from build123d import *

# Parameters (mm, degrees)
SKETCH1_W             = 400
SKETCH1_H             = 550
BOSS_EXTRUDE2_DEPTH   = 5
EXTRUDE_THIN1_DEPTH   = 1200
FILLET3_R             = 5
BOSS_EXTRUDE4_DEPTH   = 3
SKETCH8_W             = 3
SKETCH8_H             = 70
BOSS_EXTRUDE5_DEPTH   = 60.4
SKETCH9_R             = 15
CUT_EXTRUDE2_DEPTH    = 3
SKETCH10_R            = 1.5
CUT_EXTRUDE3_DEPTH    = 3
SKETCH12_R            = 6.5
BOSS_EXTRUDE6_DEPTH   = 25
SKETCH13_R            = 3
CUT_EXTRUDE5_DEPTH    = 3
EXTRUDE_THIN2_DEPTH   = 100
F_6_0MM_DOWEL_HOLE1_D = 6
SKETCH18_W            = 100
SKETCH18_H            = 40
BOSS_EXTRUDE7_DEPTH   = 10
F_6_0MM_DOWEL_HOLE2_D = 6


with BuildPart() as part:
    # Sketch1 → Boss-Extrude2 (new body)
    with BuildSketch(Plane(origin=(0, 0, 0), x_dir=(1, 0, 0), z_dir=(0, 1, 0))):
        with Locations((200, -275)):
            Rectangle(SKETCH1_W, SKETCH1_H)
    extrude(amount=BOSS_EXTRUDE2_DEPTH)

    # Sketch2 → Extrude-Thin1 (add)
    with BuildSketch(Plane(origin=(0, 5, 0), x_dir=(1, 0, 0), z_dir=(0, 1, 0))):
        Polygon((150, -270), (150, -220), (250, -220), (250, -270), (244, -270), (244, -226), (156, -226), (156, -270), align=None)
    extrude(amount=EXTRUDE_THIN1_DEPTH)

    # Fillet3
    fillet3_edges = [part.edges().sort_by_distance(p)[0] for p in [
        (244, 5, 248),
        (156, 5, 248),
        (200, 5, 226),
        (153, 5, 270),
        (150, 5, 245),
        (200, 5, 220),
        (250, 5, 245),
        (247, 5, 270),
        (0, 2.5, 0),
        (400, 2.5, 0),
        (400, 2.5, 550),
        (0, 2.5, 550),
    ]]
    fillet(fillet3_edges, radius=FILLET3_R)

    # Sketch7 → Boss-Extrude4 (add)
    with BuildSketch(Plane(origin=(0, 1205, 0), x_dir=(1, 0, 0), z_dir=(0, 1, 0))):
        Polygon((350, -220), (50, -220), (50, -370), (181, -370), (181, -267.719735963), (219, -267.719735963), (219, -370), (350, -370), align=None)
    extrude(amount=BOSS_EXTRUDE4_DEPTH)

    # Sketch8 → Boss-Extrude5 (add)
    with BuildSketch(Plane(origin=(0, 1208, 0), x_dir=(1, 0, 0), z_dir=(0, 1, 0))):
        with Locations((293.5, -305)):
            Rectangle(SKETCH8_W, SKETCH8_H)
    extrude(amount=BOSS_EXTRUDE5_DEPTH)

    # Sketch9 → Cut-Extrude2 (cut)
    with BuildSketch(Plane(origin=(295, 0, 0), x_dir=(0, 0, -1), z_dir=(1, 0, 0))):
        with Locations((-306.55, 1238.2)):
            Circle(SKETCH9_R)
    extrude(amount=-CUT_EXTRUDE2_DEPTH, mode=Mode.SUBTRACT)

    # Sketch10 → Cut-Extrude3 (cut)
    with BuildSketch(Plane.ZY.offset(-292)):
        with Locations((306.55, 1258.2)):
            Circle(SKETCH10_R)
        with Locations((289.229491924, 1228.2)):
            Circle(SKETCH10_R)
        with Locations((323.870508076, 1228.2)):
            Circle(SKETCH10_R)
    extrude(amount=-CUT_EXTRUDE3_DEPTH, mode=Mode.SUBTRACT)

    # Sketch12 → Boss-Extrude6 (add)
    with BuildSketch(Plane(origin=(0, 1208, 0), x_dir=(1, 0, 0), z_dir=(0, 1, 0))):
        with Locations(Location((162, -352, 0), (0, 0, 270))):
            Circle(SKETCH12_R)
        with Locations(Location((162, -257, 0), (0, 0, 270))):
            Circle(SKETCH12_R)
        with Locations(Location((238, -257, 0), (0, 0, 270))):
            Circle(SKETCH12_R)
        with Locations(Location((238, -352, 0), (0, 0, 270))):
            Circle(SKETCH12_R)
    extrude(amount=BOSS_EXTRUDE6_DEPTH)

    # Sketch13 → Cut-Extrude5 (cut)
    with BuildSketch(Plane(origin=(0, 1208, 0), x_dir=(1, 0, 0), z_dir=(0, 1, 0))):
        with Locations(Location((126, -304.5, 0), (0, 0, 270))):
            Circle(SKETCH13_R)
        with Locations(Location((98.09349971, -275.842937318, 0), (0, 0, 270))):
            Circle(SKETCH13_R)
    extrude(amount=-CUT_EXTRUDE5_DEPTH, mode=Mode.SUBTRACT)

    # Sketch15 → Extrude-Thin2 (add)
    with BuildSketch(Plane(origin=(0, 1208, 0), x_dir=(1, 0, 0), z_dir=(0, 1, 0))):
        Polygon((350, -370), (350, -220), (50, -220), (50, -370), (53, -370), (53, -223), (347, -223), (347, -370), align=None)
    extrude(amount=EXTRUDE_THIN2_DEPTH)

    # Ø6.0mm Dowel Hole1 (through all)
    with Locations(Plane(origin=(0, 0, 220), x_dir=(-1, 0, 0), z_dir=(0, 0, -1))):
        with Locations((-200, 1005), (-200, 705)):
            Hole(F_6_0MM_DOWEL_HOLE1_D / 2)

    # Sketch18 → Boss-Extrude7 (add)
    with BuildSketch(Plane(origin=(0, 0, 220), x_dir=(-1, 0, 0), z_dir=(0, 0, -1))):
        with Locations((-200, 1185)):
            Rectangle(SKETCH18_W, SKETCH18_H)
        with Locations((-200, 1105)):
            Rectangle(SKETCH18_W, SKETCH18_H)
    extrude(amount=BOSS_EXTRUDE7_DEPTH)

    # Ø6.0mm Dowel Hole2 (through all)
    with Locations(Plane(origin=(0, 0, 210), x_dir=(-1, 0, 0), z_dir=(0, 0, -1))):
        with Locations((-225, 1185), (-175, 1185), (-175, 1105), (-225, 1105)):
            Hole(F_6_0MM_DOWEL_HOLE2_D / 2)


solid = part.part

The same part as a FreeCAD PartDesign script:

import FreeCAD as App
import Part
import Sketcher

V = App.Vector


def edges_at(feature, points):
    """Names of the edges that pass closest to the given points."""
    edges = feature.Shape.Edges
    near = lambda p: min(range(len(edges)), key=lambda i: edges[i].distToShape(Part.Vertex(*p))[0])
    return sorted({f"Edge{near(p) + 1}" for p in points})

doc = App.newDocument("Part")
body = doc.addObject("PartDesign::Body", "Body")

# Sketch on XZ plane
sketch1 = body.newObject("Sketcher::SketchObject", "Sketch")
sketch1.AttachmentSupport = (doc.getObject("XZ_Plane"), [""])
sketch1.MapMode = "FlatFace"
sketch1.addGeometry([
    Part.LineSegment(V(0, 0, 0), V(0, 550, 0)),
    Part.LineSegment(V(0, 550, 0), V(400, 550, 0)),
    Part.LineSegment(V(400, 550, 0), V(400, 0, 0)),
    Part.LineSegment(V(400, 0, 0), V(0, 0, 0)),
], False)
sketch1.addConstraint([
    Sketcher.Constraint("Coincident", 0, 2, 1, 1),
    Sketcher.Constraint("Coincident", 1, 2, 2, 1),
    Sketcher.Constraint("Coincident", 2, 2, 3, 1),
    Sketcher.Constraint("Coincident", 3, 2, 0, 1),
    Sketcher.Constraint("Vertical", 0),
    Sketcher.Constraint("Horizontal", 1),
    Sketcher.Constraint("Vertical", 2),
    Sketcher.Constraint("Horizontal", 3),
    Sketcher.Constraint("Coincident", 3, 2, -1, 1),
    Sketcher.Constraint("DistanceX", 1, 1, 1, 2, 400.0),
    Sketcher.Constraint("DistanceY", 0, 1, 0, 2, 550.0),
])
pad1 = body.newObject("PartDesign::Pad", "Pad")
pad1.Profile = sketch1
pad1.Length = 5
pad1.Reversed = True

# Sketch on XZ plane
sketch2 = body.newObject("Sketcher::SketchObject", "Sketch001")
sketch2.AttachmentSupport = (doc.getObject("XZ_Plane"), [""])
sketch2.MapMode = "FlatFace"
sketch2.AttachmentOffset = App.Placement(V(0, 0, -5), App.Rotation())
sketch2.addGeometry([
    Part.LineSegment(V(150, 220, 0), V(150, 270, 0)),  # 0
    Part.LineSegment(V(150, 270, 0), V(156, 270, 0)),  # 1
    Part.LineSegment(V(156, 270, 0), V(156, 226, 0)),  # 2
    Part.LineSegment(V(156, 226, 0), V(244, 226, 0)),  # 3
    Part.LineSegment(V(244, 226, 0), V(244, 270, 0)),  # 4
    Part.LineSegment(V(244, 270, 0), V(250, 270, 0)),  # 5
    Part.LineSegment(V(250, 270, 0), V(250, 220, 0)),  # 6
    Part.LineSegment(V(250, 220, 0), V(150, 220, 0)),  # 7
], False)
sketch2.addConstraint([
    Sketcher.Constraint("Coincident", 0, 2, 1, 1),
    Sketcher.Constraint("Coincident", 1, 2, 2, 1),
    Sketcher.Constraint("Coincident", 2, 2, 3, 1),
    Sketcher.Constraint("Coincident", 3, 2, 4, 1),
    Sketcher.Constraint("Coincident", 4, 2, 5, 1),
    Sketcher.Constraint("Coincident", 5, 2, 6, 1),
    Sketcher.Constraint("Coincident", 6, 2, 7, 1),
    Sketcher.Constraint("Coincident", 7, 2, 0, 1),
    Sketcher.Constraint("Vertical", 0),
    Sketcher.Constraint("Horizontal", 1),
    Sketcher.Constraint("Vertical", 2),
    Sketcher.Constraint("Horizontal", 3),
    Sketcher.Constraint("Vertical", 4),
    Sketcher.Constraint("Horizontal", 5),
    Sketcher.Constraint("Vertical", 6),
    Sketcher.Constraint("Horizontal", 7),
    Sketcher.Constraint("Horizontal", 1, 2, 4, 2),
    Sketcher.Constraint("Equal", 1, 5),
    Sketcher.Constraint("DistanceX", 1, 1, 1, 2, 6.0),
    Sketcher.Constraint("DistanceX", 3, 1, 3, 2, 88.0),
    Sketcher.Constraint("DistanceY", 0, 1, 0, 2, 50.0),
    Sketcher.Constraint("DistanceY", 2, 2, 2, 1, 44.0),
    Sketcher.Constraint("DistanceX", -1, 1, 0, 2, 150.0),
    Sketcher.Constraint("DistanceY", -1, 1, 0, 2, 270.0),
])
pad2 = body.newObject("PartDesign::Pad", "Pad001")
pad2.Profile = sketch2
pad2.Length = 1200
pad2.Reversed = True
doc.recompute()

fillet = body.newObject("PartDesign::Fillet", "Fillet")
fillet.Base = (pad2, edges_at(pad2, [
    (244, 5, 248),
    (156, 5, 248),
    (200, 5, 226),
    (153, 5, 270),
    (150, 5, 245),
    (200, 5, 220),
    (250, 5, 245),
    (247, 5, 270),
    (0, 2.5, 0),
    (400, 2.5, 0),
    (400, 2.5, 550),
    (0, 2.5, 550),
]))
fillet.Radius = 5

# Sketch on XZ plane
sketch3 = body.newObject("Sketcher::SketchObject", "Sketch002")
sketch3.AttachmentSupport = (doc.getObject("XZ_Plane"), [""])
sketch3.MapMode = "FlatFace"
sketch3.AttachmentOffset = App.Placement(V(0, 0, -1205), App.Rotation())
sketch3.addGeometry([
    Part.LineSegment(V(350, 220, 0), V(50, 220, 0)),  # 0
    Part.LineSegment(V(50, 220, 0), V(50, 370, 0)),  # 1
    Part.LineSegment(V(50, 370, 0), V(181, 370, 0)),  # 2
    Part.LineSegment(V(181, 370, 0), V(181, 268, 0)),  # 3
    Part.LineSegment(V(181, 268, 0), V(219, 268, 0)),  # 4
    Part.LineSegment(V(219, 268, 0), V(219, 370, 0)),  # 5
    Part.LineSegment(V(219, 370, 0), V(350, 370, 0)),  # 6
    Part.LineSegment(V(350, 370, 0), V(350, 220, 0)),  # 7
], False)
sketch3.addConstraint([
    Sketcher.Constraint("Coincident", 0, 2, 1, 1),
    Sketcher.Constraint("Coincident", 1, 2, 2, 1),
    Sketcher.Constraint("Coincident", 2, 2, 3, 1),
    Sketcher.Constraint("Coincident", 3, 2, 4, 1),
    Sketcher.Constraint("Coincident", 4, 2, 5, 1),
    Sketcher.Constraint("Coincident", 5, 2, 6, 1),
    Sketcher.Constraint("Coincident", 6, 2, 7, 1),
    Sketcher.Constraint("Coincident", 7, 2, 0, 1),
    Sketcher.Constraint("Horizontal", 0),
    Sketcher.Constraint("Vertical", 1),
    Sketcher.Constraint("Horizontal", 2),
    Sketcher.Constraint("Vertical", 3),
    Sketcher.Constraint("Horizontal", 4),
    Sketcher.Constraint("Vertical", 5),
    Sketcher.Constraint("Horizontal", 6),
    Sketcher.Constraint("Vertical", 7),
    Sketcher.Constraint("Horizontal", 2, 2, 5, 2),
    Sketcher.Constraint("Equal", 2, 6),
    Sketcher.Constraint("DistanceX", 0, 2, 0, 1, 300.0),
    Sketcher.Constraint("DistanceX", 2, 1, 2, 2, 131.0),
    Sketcher.Constraint("DistanceY", 1, 1, 1, 2, 150.0),
    Sketcher.Constraint("DistanceX", -1, 1, 0, 2, 50.0),
    Sketcher.Constraint("DistanceY", -1, 1, 0, 2, 220.0),
    Sketcher.Constraint("DistanceY", 3, 2, 3, 1, 102.280264),
])
pad3 = body.newObject("PartDesign::Pad", "Pad002")
pad3.Profile = sketch3
pad3.Length = 3
pad3.Reversed = True

# Sketch on XZ plane
sketch4 = body.newObject("Sketcher::SketchObject", "Sketch003")
sketch4.AttachmentSupport = (doc.getObject("XZ_Plane"), [""])
sketch4.MapMode = "FlatFace"
sketch4.AttachmentOffset = App.Placement(V(0, 0, -1208), App.Rotation())
sketch4.addGeometry([
    Part.LineSegment(V(292, 270, 0), V(292, 340, 0)),
    Part.LineSegment(V(292, 340, 0), V(295, 340, 0)),
    Part.LineSegment(V(295, 340, 0), V(295, 270, 0)),
    Part.LineSegment(V(295, 270, 0), V(292, 270, 0)),
], False)
sketch4.addConstraint([
    Sketcher.Constraint("Coincident", 0, 2, 1, 1),
    Sketcher.Constraint("Coincident", 1, 2, 2, 1),
    Sketcher.Constraint("Coincident", 2, 2, 3, 1),
    Sketcher.Constraint("Coincident", 3, 2, 0, 1),
    Sketcher.Constraint("Vertical", 0),
    Sketcher.Constraint("Horizontal", 1),
    Sketcher.Constraint("Vertical", 2),
    Sketcher.Constraint("Horizontal", 3),
    Sketcher.Constraint("DistanceX", 1, 1, 1, 2, 3.0),
    Sketcher.Constraint("DistanceY", 0, 1, 0, 2, 70.0),
    Sketcher.Constraint("DistanceX", -1, 1, 0, 2, 292.0),
    Sketcher.Constraint("DistanceY", -1, 1, 0, 2, 340.0),
])
pad4 = body.newObject("PartDesign::Pad", "Pad003")
pad4.Profile = sketch4
pad4.Length = 60.4
pad4.Reversed = True

# Sketch on YZ plane
sketch5 = body.newObject("Sketcher::SketchObject", "Sketch004")
sketch5.AttachmentSupport = (doc.getObject("YZ_Plane"), [""])
sketch5.MapMode = "FlatFace"
sketch5.AttachmentOffset = App.Placement(V(0, 0, 295), App.Rotation())
sketch5.addGeometry(Part.Circle(V(1238, 307, 0), V(0, 0, 1), 15), False)
sketch5.addConstraint([
    Sketcher.Constraint("Diameter", 0, 30.0),
    Sketcher.Constraint("DistanceX", -1, 1, 0, 3, 1238.2),
    Sketcher.Constraint("DistanceY", -1, 1, 0, 3, 306.55),
])
pocket1 = body.newObject("PartDesign::Pocket", "Pocket")
pocket1.Profile = sketch5
pocket1.Length = 3

# Sketch on YZ plane
sketch6 = body.newObject("Sketcher::SketchObject", "Sketch005")
sketch6.AttachmentSupport = (doc.getObject("YZ_Plane"), [""])
sketch6.MapMode = "FlatFace"
sketch6.AttachmentOffset = App.Placement(V(0, 0, 292), App.Rotation())
sketch6.addGeometry([
    Part.Circle(V(1258.2, 306.6, 0), V(0, 0, 1), 1.5),
    Part.Circle(V(1228.2, 289.2, 0), V(0, 0, 1), 1.5),
    Part.Circle(V(1228.2, 323.9, 0), V(0, 0, 1), 1.5),
], False)
sketch6.addConstraint([
    Sketcher.Constraint("Equal", 0, 1),
    Sketcher.Constraint("Equal", 1, 2),
    Sketcher.Constraint("Vertical", 1, 3, 2, 3),
    Sketcher.Constraint("Diameter", 0, 3.0),
    Sketcher.Constraint("DistanceX", 1, 3, 0, 3, 30.0),
    Sketcher.Constraint("DistanceX", -1, 1, 0, 3, 1258.2),
    Sketcher.Constraint("DistanceY", -1, 1, 0, 3, 306.55),
    Sketcher.Constraint("DistanceY", -1, 1, 1, 3, 289.229492),
    Sketcher.Constraint("DistanceY", -1, 1, 2, 3, 323.870508),
])
pocket2 = body.newObject("PartDesign::Pocket", "Pocket001")
pocket2.Profile = sketch6
pocket2.Length = 3
pocket2.Reversed = True

# Sketch on XZ plane
sketch7 = body.newObject("Sketcher::SketchObject", "Sketch006")
sketch7.AttachmentSupport = (doc.getObject("XZ_Plane"), [""])
sketch7.MapMode = "FlatFace"
sketch7.AttachmentOffset = App.Placement(V(0, 0, -1208), App.Rotation())
sketch7.addGeometry([
    Part.Circle(V(162, 352, 0), V(0, 0, 1), 6),
    Part.Circle(V(162, 257, 0), V(0, 0, 1), 6),
    Part.Circle(V(238, 257, 0), V(0, 0, 1), 6),
    Part.Circle(V(238, 352, 0), V(0, 0, 1), 6),
], False)
sketch7.addConstraint([
    Sketcher.Constraint("Equal", 0, 1),
    Sketcher.Constraint("Equal", 1, 2),
    Sketcher.Constraint("Equal", 2, 3),
    Sketcher.Constraint("Horizontal", 1, 3, 2, 3),
    Sketcher.Constraint("Horizontal", 0, 3, 3, 3),
    Sketcher.Constraint("Vertical", 0, 3, 1, 3),
    Sketcher.Constraint("Vertical", 2, 3, 3, 3),
    Sketcher.Constraint("Diameter", 0, 13.0),
    Sketcher.Constraint("DistanceX", -1, 1, 0, 3, 162.0),
    Sketcher.Constraint("DistanceY", -1, 1, 0, 3, 352.0),
    Sketcher.Constraint("DistanceY", -1, 1, 1, 3, 257.0),
    Sketcher.Constraint("DistanceX", -1, 1, 2, 3, 238.0),
])
pad5 = body.newObject("PartDesign::Pad", "Pad004")
pad5.Profile = sketch7
pad5.Length = 25
pad5.Reversed = True

# Sketch on XZ plane
sketch8 = body.newObject("Sketcher::SketchObject", "Sketch007")
sketch8.AttachmentSupport = (doc.getObject("XZ_Plane"), [""])
sketch8.MapMode = "FlatFace"
sketch8.AttachmentOffset = App.Placement(V(0, 0, -1208), App.Rotation())
sketch8.addGeometry([
    Part.Circle(V(126, 304.5, 0), V(0, 0, 1), 3),
    Part.Circle(V(98.1, 275.8, 0), V(0, 0, 1), 3),
], False)
sketch8.addConstraint([
    Sketcher.Constraint("Equal", 0, 1),
    Sketcher.Constraint("Diameter", 0, 6.0),
    Sketcher.Constraint("DistanceX", -1, 1, 0, 3, 126.0),
    Sketcher.Constraint("DistanceY", -1, 1, 0, 3, 304.5),
    Sketcher.Constraint("DistanceX", -1, 1, 1, 3, 98.0935),
    Sketcher.Constraint("DistanceY", -1, 1, 1, 3, 275.842937),
])
pocket3 = body.newObject("PartDesign::Pocket", "Pocket002")
pocket3.Profile = sketch8
pocket3.Length = 3
pocket3.Reversed = True

# Sketch on XZ plane
sketch9 = body.newObject("Sketcher::SketchObject", "Sketch008")
sketch9.AttachmentSupport = (doc.getObject("XZ_Plane"), [""])
sketch9.MapMode = "FlatFace"
sketch9.AttachmentOffset = App.Placement(V(0, 0, -1208), App.Rotation())
sketch9.addGeometry([
    Part.LineSegment(V(350, 370, 0), V(350, 220, 0)),  # 0
    Part.LineSegment(V(350, 220, 0), V(50, 220, 0)),  # 1
    Part.LineSegment(V(50, 220, 0), V(50, 370, 0)),  # 2
    Part.LineSegment(V(50, 370, 0), V(53, 370, 0)),  # 3
    Part.LineSegment(V(53, 370, 0), V(53, 223, 0)),  # 4
    Part.LineSegment(V(53, 223, 0), V(347, 223, 0)),  # 5
    Part.LineSegment(V(347, 223, 0), V(347, 370, 0)),  # 6
    Part.LineSegment(V(347, 370, 0), V(350, 370, 0)),  # 7
], False)
sketch9.addConstraint([
    Sketcher.Constraint("Coincident", 0, 2, 1, 1),
    Sketcher.Constraint("Coincident", 1, 2, 2, 1),
    Sketcher.Constraint("Coincident", 2, 2, 3, 1),
    Sketcher.Constraint("Coincident", 3, 2, 4, 1),
    Sketcher.Constraint("Coincident", 4, 2, 5, 1),
    Sketcher.Constraint("Coincident", 5, 2, 6, 1),
    Sketcher.Constraint("Coincident", 6, 2, 7, 1),
    Sketcher.Constraint("Coincident", 7, 2, 0, 1),
    Sketcher.Constraint("Vertical", 0),
    Sketcher.Constraint("Horizontal", 1),
    Sketcher.Constraint("Vertical", 2),
    Sketcher.Constraint("Horizontal", 3),
    Sketcher.Constraint("Vertical", 4),
    Sketcher.Constraint("Horizontal", 5),
    Sketcher.Constraint("Vertical", 6),
    Sketcher.Constraint("Horizontal", 7),
    Sketcher.Constraint("Horizontal", 3, 2, 6, 2),
    Sketcher.Constraint("Equal", 3, 7),
    Sketcher.Constraint("DistanceX", 1, 2, 1, 1, 300.0),
    Sketcher.Constraint("DistanceX", 3, 1, 3, 2, 3.0),
    Sketcher.Constraint("DistanceY", 0, 2, 0, 1, 150.0),
    Sketcher.Constraint("DistanceY", 4, 2, 4, 1, 147.0),
    Sketcher.Constraint("DistanceX", -1, 1, 0, 2, 350.0),
    Sketcher.Constraint("DistanceY", -1, 1, 0, 2, 220.0),
])
pad6 = body.newObject("PartDesign::Pad", "Pad005")
pad6.Profile = sketch9
pad6.Length = 100
pad6.Reversed = True

# Sketch on XY plane
sketch10 = body.newObject("Sketcher::SketchObject", "Sketch009")
sketch10.AttachmentSupport = (doc.getObject("XY_Plane"), [""])
sketch10.MapMode = "FlatFace"
sketch10.AttachmentOffset = App.Placement(V(0, 0, 220), App.Rotation())
sketch10.addGeometry([
    Part.Circle(V(200, 1005, 0), V(0, 0, 1), 3),
    Part.Circle(V(200, 705, 0), V(0, 0, 1), 3),
], False)
sketch10.addConstraint([
    Sketcher.Constraint("Equal", 0, 1),
    Sketcher.Constraint("Vertical", 0, 3, 1, 3),
    Sketcher.Constraint("Diameter", 0, 6.0),
    Sketcher.Constraint("DistanceX", -1, 1, 0, 3, 200.0),
    Sketcher.Constraint("DistanceY", -1, 1, 0, 3, 1005.0),
    Sketcher.Constraint("DistanceY", -1, 1, 1, 3, 705.0),
])
doc.recompute()
hole = body.newObject("PartDesign::Hole", "Hole")
hole.Profile = sketch10
hole.ThreadType = "None"
hole.Diameter = 6
hole.DepthType = "ThroughAll"
hole.Reversed = True

# Sketch on XY plane
sketch11 = body.newObject("Sketcher::SketchObject", "Sketch010")
sketch11.AttachmentSupport = (doc.getObject("XY_Plane"), [""])
sketch11.MapMode = "FlatFace"
sketch11.AttachmentOffset = App.Placement(V(0, 0, 220), App.Rotation())
sketch11.addGeometry([
    Part.LineSegment(V(250, 1205, 0), V(250, 1165, 0)),  # 0
    Part.LineSegment(V(250, 1165, 0), V(150, 1165, 0)),  # 1
    Part.LineSegment(V(150, 1165, 0), V(150, 1205, 0)),  # 2
    Part.LineSegment(V(150, 1205, 0), V(250, 1205, 0)),  # 3
    Part.LineSegment(V(250, 1125, 0), V(250, 1085, 0)),  # 4
    Part.LineSegment(V(250, 1085, 0), V(150, 1085, 0)),  # 5
    Part.LineSegment(V(150, 1085, 0), V(150, 1125, 0)),  # 6
    Part.LineSegment(V(150, 1125, 0), V(250, 1125, 0)),  # 7
], False)
sketch11.addConstraint([
    Sketcher.Constraint("Coincident", 0, 2, 1, 1),
    Sketcher.Constraint("Coincident", 1, 2, 2, 1),
    Sketcher.Constraint("Coincident", 2, 2, 3, 1),
    Sketcher.Constraint("Coincident", 3, 2, 0, 1),
    Sketcher.Constraint("Coincident", 4, 2, 5, 1),
    Sketcher.Constraint("Coincident", 5, 2, 6, 1),
    Sketcher.Constraint("Coincident", 6, 2, 7, 1),
    Sketcher.Constraint("Coincident", 7, 2, 4, 1),
    Sketcher.Constraint("Vertical", 0),
    Sketcher.Constraint("Horizontal", 1),
    Sketcher.Constraint("Vertical", 2),
    Sketcher.Constraint("Horizontal", 3),
    Sketcher.Constraint("Vertical", 4),
    Sketcher.Constraint("Horizontal", 5),
    Sketcher.Constraint("Vertical", 6),
    Sketcher.Constraint("Horizontal", 7),
    Sketcher.Constraint("Vertical", 3, 2, 4, 2),
    Sketcher.Constraint("Vertical", 2, 2, 5, 2),
    Sketcher.Constraint("Equal", 2, 4),
    Sketcher.Constraint("DistanceX", 1, 2, 1, 1, 100.0),
    Sketcher.Constraint("DistanceY", 0, 2, 0, 1, 40.0),
    Sketcher.Constraint("DistanceX", -1, 1, 0, 2, 250.0),
    Sketcher.Constraint("DistanceY", -1, 1, 0, 2, 1165.0),
    Sketcher.Constraint("DistanceY", -1, 1, 4, 2, 1085.0),
])
pad7 = body.newObject("PartDesign::Pad", "Pad006")
pad7.Profile = sketch11
pad7.Length = 10
pad7.Reversed = True

# Sketch on XY plane
sketch12 = body.newObject("Sketcher::SketchObject", "Sketch011")
sketch12.AttachmentSupport = (doc.getObject("XY_Plane"), [""])
sketch12.MapMode = "FlatFace"
sketch12.AttachmentOffset = App.Placement(V(0, 0, 210), App.Rotation())
sketch12.addGeometry([
    Part.Circle(V(225, 1185, 0), V(0, 0, 1), 3),
    Part.Circle(V(175, 1185, 0), V(0, 0, 1), 3),
    Part.Circle(V(175, 1105, 0), V(0, 0, 1), 3),
    Part.Circle(V(225, 1105, 0), V(0, 0, 1), 3),
], False)
sketch12.addConstraint([
    Sketcher.Constraint("Equal", 0, 1),
    Sketcher.Constraint("Equal", 1, 2),
    Sketcher.Constraint("Equal", 2, 3),
    Sketcher.Constraint("Horizontal", 0, 3, 1, 3),
    Sketcher.Constraint("Horizontal", 2, 3, 3, 3),
    Sketcher.Constraint("Vertical", 1, 3, 2, 3),
    Sketcher.Constraint("Vertical", 0, 3, 3, 3),
    Sketcher.Constraint("Diameter", 0, 6.0),
    Sketcher.Constraint("DistanceX", -1, 1, 0, 3, 225.0),
    Sketcher.Constraint("DistanceY", -1, 1, 0, 3, 1185.0),
    Sketcher.Constraint("DistanceX", -1, 1, 1, 3, 175.0),
    Sketcher.Constraint("DistanceY", -1, 1, 2, 3, 1105.0),
])
doc.recompute()
hole2 = body.newObject("PartDesign::Hole", "Hole001")
hole2.Profile = sketch12
hole2.ThreadType = "None"
hole2.Diameter = 6
hole2.DepthType = "ThroughAll"
hole2.Reversed = True

doc.recompute()
